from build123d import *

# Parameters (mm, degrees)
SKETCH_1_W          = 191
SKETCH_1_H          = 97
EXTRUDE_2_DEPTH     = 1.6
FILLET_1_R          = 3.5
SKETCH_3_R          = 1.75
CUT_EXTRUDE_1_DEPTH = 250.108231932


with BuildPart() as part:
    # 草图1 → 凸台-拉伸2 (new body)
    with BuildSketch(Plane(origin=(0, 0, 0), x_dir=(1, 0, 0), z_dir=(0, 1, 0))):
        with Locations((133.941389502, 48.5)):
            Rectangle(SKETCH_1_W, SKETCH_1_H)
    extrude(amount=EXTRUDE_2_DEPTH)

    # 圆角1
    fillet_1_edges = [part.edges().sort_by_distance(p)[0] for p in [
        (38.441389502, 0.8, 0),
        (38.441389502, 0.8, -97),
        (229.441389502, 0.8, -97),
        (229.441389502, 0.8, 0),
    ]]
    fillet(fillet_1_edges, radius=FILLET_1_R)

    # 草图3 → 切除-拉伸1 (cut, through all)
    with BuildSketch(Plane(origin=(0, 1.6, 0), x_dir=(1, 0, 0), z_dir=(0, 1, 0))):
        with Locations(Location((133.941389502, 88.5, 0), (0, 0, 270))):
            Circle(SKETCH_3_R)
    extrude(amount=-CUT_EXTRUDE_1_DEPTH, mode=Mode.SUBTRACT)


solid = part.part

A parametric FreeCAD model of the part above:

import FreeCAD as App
import Part
import Sketcher


def edges_at(feature, points):
    """Names of the edges that pass closest to the given points."""
    edges = feature.Shape.Edges
    near = lambda p: min(range(len(edges)), key=lambda i: edges[i].distToShape(Part.Vertex(*p))[0])
    return sorted({f"Edge{near(p) + 1}" for p in points})


def add_polygon(sketch, points):
    """Adds a closed chain of lines whose ends are joined by coincident constraints."""
    first, n = sketch.GeometryCount, len(points)
    for a, b in zip(points, points[1:] + points[:1]):
        sketch.addGeometry(Part.LineSegment(App.Vector(*a, 0), App.Vector(*b, 0)), False)
    for i in range(n):
        sketch.addConstraint(Sketcher.Constraint("Coincident", first + i, 2, first + (i + 1) % n, 1))

doc = App.newDocument("Part")
body = doc.addObject("PartDesign::Body", "Body")

# Sketch on XZ plane
sketch1 = body.newObject("Sketcher::SketchObject", "Sketch")
sketch1.AttachmentSupport = (doc.getObject("XZ_Plane"), [""])
sketch1.MapMode = "FlatFace"
add_polygon(sketch1, [(38.44139, -97), (38.44139, 0), (229.44139, 0), (229.44139, -97)])  # lines 0-3
sketch1.addConstraint(Sketcher.Constraint("Vertical", 0))
sketch1.addConstraint(Sketcher.Constraint("Horizontal", 1))
sketch1.addConstraint(Sketcher.Constraint("Vertical", 2))
sketch1.addConstraint(Sketcher.Constraint("Horizontal", 3))
sketch1.addConstraint(Sketcher.Constraint("PointOnObject", 0, 2, -1))
sketch1.addConstraint(Sketcher.Constraint("DistanceX", 1, 1, 1, 2, 191.0))
sketch1.addConstraint(Sketcher.Constraint("DistanceY", 0, 1, 0, 2, 97.0))
sketch1.addConstraint(Sketcher.Constraint("DistanceX", -1, 1, 0, 2, 38.44139))
pad1 = body.newObject("PartDesign::Pad", "Pad")
pad1.Profile = sketch1
pad1.Length = 1.6
pad1.Reversed = True
doc.recompute()

fillet = body.newObject("PartDesign::Fillet", "Fillet")
fillet.Base = (pad1, edges_at(pad1, [
    (38.441, 0.8, 0),
    (38.441, 0.8, -97),
    (229.441, 0.8, -97),
    (229.441, 0.8, 0),
]))
fillet.Radius = 3.5

# Sketch on XZ plane
sketch2 = body.newObject("Sketcher::SketchObject", "Sketch001")
sketch2.AttachmentSupport = (doc.getObject("XZ_Plane"), [""])
sketch2.MapMode = "FlatFace"
sketch2.AttachmentOffset = App.Placement(App.Vector(0, 0, -1.6), App.Rotation())
sketch2.addGeometry(Part.Circle(App.Vector(133.94139, -88.5, 0), App.Vector(0, 0, 1), 1.75), False)
sketch2.addConstraint(Sketcher.Constraint("Diameter", 0, 3.5))
sketch2.addConstraint(Sketcher.Constraint("DistanceY", 0, 3, -1, 1, 88.5))
sketch2.addConstraint(Sketcher.Constraint("DistanceX", -1, 1, 0, 3, 133.94139))
pocket1 = body.newObject("PartDesign::Pocket", "Pocket")
pocket1.Profile = sketch2
pocket1.Type = "ThroughAll"
pocket1.Reversed = True

doc.recompute()
